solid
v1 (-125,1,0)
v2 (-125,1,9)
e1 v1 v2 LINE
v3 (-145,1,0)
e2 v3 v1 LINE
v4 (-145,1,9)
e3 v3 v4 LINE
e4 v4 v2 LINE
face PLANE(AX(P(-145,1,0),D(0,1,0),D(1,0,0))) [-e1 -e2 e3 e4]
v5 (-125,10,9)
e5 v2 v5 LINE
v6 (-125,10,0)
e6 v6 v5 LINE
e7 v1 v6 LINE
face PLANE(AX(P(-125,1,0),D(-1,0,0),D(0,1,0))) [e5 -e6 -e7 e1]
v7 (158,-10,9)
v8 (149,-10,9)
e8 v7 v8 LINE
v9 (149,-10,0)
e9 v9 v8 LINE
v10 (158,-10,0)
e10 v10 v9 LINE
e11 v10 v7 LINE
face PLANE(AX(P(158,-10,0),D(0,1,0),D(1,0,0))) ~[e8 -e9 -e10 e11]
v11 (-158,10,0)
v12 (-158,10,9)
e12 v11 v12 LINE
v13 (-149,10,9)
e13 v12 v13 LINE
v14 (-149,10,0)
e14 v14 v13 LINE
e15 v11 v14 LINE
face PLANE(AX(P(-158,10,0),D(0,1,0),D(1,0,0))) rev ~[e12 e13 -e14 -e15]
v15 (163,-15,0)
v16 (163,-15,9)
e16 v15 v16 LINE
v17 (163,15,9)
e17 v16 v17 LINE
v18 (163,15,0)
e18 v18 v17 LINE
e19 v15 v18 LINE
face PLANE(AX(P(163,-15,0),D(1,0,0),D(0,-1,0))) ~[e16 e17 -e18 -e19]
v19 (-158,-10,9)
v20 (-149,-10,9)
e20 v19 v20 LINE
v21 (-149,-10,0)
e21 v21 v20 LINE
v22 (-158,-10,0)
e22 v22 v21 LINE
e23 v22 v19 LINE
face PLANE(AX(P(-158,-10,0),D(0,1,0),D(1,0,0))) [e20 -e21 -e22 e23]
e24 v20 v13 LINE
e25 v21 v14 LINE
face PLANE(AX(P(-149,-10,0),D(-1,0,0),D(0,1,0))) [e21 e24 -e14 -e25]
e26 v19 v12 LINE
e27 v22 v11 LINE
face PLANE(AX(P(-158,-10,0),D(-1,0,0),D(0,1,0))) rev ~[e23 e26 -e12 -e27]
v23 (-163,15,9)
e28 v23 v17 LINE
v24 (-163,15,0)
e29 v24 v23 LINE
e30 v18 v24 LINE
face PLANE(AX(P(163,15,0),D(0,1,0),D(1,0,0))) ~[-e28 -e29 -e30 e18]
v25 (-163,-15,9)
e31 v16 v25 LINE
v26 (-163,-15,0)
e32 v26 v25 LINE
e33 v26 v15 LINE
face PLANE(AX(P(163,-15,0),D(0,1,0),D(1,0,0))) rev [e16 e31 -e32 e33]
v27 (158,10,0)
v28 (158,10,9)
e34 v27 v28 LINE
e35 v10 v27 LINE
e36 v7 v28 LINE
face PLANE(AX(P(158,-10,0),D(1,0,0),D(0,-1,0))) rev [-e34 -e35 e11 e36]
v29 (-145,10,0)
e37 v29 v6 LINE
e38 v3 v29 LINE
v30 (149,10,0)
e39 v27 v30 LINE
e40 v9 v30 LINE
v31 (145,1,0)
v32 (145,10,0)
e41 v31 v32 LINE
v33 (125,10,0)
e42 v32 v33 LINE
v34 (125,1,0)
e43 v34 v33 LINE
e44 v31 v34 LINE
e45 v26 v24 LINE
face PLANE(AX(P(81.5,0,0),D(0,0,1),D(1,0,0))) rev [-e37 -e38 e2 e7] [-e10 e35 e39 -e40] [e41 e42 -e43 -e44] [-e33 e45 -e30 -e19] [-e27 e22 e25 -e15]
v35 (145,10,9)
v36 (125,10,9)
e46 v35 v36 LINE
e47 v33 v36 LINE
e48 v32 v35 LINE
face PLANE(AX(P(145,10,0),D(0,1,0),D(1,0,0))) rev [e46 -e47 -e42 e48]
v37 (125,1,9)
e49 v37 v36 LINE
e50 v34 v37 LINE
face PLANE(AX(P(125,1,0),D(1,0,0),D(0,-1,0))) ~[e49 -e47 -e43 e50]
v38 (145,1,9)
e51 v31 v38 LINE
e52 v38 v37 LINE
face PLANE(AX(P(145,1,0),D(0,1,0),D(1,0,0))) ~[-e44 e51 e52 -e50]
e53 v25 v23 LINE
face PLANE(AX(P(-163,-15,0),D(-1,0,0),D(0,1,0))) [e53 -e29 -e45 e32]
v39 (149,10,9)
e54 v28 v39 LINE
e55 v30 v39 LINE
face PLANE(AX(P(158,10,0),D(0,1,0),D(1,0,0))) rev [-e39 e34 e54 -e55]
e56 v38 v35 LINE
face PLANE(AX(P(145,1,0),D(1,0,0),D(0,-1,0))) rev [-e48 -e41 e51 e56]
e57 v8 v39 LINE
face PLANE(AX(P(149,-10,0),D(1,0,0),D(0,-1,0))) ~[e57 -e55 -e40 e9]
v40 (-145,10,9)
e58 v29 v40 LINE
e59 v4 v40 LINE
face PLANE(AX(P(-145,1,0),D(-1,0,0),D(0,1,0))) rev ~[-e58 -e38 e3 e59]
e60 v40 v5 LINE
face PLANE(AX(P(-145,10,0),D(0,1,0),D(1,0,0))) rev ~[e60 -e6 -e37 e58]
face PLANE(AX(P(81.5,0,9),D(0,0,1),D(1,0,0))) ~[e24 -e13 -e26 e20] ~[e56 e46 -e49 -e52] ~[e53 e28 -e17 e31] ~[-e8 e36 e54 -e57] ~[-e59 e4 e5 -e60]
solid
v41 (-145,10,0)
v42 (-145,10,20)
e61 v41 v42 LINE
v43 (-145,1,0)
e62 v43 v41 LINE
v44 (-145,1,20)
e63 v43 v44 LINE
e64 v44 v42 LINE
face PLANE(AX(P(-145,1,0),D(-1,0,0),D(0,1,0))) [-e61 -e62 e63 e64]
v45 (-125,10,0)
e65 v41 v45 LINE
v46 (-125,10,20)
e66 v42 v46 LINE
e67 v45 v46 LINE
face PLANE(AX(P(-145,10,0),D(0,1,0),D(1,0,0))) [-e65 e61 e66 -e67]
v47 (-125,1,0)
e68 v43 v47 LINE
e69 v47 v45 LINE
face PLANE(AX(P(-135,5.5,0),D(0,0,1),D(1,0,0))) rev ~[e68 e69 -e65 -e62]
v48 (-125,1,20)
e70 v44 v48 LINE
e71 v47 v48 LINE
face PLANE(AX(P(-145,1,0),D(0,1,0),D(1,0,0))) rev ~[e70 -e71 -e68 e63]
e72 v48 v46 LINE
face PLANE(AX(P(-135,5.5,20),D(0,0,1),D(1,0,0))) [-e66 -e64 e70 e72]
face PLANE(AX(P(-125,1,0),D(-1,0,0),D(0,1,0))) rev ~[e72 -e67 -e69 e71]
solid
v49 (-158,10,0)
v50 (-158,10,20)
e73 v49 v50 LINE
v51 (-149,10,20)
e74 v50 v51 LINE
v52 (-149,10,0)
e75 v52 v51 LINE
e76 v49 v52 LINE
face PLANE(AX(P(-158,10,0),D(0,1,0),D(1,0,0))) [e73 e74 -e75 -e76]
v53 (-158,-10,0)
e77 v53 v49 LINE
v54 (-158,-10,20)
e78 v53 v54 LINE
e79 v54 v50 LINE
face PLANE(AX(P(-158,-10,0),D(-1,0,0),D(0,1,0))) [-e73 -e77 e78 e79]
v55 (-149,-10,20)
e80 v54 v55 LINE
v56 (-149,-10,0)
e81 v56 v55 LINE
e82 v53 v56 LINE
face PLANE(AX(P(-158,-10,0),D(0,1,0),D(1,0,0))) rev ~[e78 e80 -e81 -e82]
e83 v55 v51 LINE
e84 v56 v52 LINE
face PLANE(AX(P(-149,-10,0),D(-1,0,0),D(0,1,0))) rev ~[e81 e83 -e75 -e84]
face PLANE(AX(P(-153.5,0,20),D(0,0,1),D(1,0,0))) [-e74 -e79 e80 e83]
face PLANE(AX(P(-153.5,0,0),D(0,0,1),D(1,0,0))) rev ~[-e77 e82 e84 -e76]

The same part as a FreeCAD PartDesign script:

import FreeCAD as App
import Part
import Sketcher
Q = App.Units.Quantity


def add_polygon(sketch, points):
    """Adds a closed chain of lines whose ends are joined by coincident constraints."""
    first, n = sketch.GeometryCount, len(points)
    for a, b in zip(points, points[1:] + points[:1]):
        sketch.addGeometry(Part.LineSegment(App.Vector(*a, 0), App.Vector(*b, 0)), False)
    for i in range(n):
        sketch.addConstraint(Sketcher.Constraint("Coincident", first + i, 2, first + (i + 1) % n, 1))

doc = App.newDocument("Part")
body = doc.addObject("PartDesign::Body", "Body")

sketch1 = body.newObject("Sketcher::SketchObject", "Sketch")
sketch1.AttachmentSupport = (doc.getObject("XY_Plane"), [""])
sketch1.MapMode = "FlatFace"
add_polygon(sketch1, [(-163, 15), (-163, -15), (0, -15), (0, 15)])
add_polygon(sketch1, [(-149, -10), (-158, -10), (-158, 10), (-149, 10)])
add_polygon(sketch1, [(-125, 1), (-145, 1), (-145, 10), (-125, 10)])
sketch1.addConstraint([
    Sketcher.Constraint("Vertical", 0),
    Sketcher.Constraint("Horizontal", 1),
    Sketcher.Constraint("Vertical", 2),
    Sketcher.Constraint("Horizontal", 3),
    Sketcher.Constraint("Horizontal", 4),
    Sketcher.Constraint("Vertical", 5),
    Sketcher.Constraint("Horizontal", 6),
    Sketcher.Constraint("Vertical", 7),
    Sketcher.Constraint("Horizontal", 8),
    Sketcher.Constraint("Vertical", 9),
    Sketcher.Constraint("Horizontal", 10),
    Sketcher.Constraint("Vertical", 11),
    Sketcher.Constraint("Symmetric", 1, 2, 2, 2, -1, 1),
    Sketcher.Constraint("Horizontal", 6, 2, 9, 2),
    Sketcher.Constraint("Equal", 10, 5),
    Sketcher.Constraint("Equal", 6, 9),
    Sketcher.Constraint("DistanceX", 1, 1, 1, 2, Q("163 mm")),
    Sketcher.Constraint("DistanceX", 4, 2, 4, 1, Q("9 mm")),
    Sketcher.Constraint("DistanceX", 8, 2, 8, 1, Q("20 mm")),
    Sketcher.Constraint("DistanceY", 0, 2, 0, 1, Q("30 mm")),
    Sketcher.Constraint("DistanceX", 4, 2, -1, 1, Q("158 mm")),
    Sketcher.Constraint("DistanceY", 4, 2, -1, 1, Q("10 mm")),
    Sketcher.Constraint("DistanceX", 8, 2, -1, 1, Q("145 mm")),
])
pad1 = body.newObject("PartDesign::Pad", "Pad")
pad1.Profile = sketch1
pad1.Length = 9
body2 = doc.addObject("PartDesign::Body", "Body001")
body2.AllowCompound = True

sketch2 = body2.newObject("Sketcher::SketchObject", "Sketch001")
sketch2.AttachmentSupport = (doc.getObject("XY_Plane001"), [""])
sketch2.MapMode = "FlatFace"
add_polygon(sketch2, [(-158, 10), (-158, -10), (-149, -10), (-149, 10)])
add_polygon(sketch2, [(-145, 10), (-145, 1), (-125, 1), (-125, 10)])
sketch2.addConstraint([
    Sketcher.Constraint("Vertical", 0),
    Sketcher.Constraint("Horizontal", 1),
    Sketcher.Constraint("Vertical", 2),
    Sketcher.Constraint("Horizontal", 3),
    Sketcher.Constraint("Vertical", 4),
    Sketcher.Constraint("Horizontal", 5),
    Sketcher.Constraint("Vertical", 6),
    Sketcher.Constraint("Horizontal", 7),
    Sketcher.Constraint("Horizontal", 3, 2, 6, 2),
    Sketcher.Constraint("Equal", 7, 0),
    Sketcher.Constraint("Equal", 3, 4),
    Sketcher.Constraint("DistanceX", 1, 1, 1, 2, Q("9 mm")),
    Sketcher.Constraint("DistanceX", 5, 1, 5, 2, Q("20 mm")),
    Sketcher.Constraint("DistanceX", 0, 2, -1, 1, Q("158 mm")),
    Sketcher.Constraint("DistanceY", 0, 2, -1, 1, Q("10 mm")),
    Sketcher.Constraint("DistanceX", 4, 2, -1, 1, Q("145 mm")),
])
pad2 = body2.newObject("PartDesign::Pad", "Pad001")
pad2.Profile = sketch2
pad2.Length = 20
body3 = doc.addObject("PartDesign::Body", "Body002")
doc.recompute()

body3.BaseFeature = body
doc.recompute()

mirroring = doc.addObject("Part::Mirroring", "Mirroring")
mirroring.Source = body
mirroring.Base = App.Vector(0, 0, 4.5)
mirroring.Normal = App.Vector(1, 0, 0)
body4 = doc.addObject("PartDesign::Body", "Body003")
body4.BaseFeature = mirroring
boolean = body3.newObject("PartDesign::Boolean", "Boolean")
boolean.Type = "Fuse"
boolean.addObjects([body4])
doc.recompute()
mirroring.Visibility = False

doc.recompute()
